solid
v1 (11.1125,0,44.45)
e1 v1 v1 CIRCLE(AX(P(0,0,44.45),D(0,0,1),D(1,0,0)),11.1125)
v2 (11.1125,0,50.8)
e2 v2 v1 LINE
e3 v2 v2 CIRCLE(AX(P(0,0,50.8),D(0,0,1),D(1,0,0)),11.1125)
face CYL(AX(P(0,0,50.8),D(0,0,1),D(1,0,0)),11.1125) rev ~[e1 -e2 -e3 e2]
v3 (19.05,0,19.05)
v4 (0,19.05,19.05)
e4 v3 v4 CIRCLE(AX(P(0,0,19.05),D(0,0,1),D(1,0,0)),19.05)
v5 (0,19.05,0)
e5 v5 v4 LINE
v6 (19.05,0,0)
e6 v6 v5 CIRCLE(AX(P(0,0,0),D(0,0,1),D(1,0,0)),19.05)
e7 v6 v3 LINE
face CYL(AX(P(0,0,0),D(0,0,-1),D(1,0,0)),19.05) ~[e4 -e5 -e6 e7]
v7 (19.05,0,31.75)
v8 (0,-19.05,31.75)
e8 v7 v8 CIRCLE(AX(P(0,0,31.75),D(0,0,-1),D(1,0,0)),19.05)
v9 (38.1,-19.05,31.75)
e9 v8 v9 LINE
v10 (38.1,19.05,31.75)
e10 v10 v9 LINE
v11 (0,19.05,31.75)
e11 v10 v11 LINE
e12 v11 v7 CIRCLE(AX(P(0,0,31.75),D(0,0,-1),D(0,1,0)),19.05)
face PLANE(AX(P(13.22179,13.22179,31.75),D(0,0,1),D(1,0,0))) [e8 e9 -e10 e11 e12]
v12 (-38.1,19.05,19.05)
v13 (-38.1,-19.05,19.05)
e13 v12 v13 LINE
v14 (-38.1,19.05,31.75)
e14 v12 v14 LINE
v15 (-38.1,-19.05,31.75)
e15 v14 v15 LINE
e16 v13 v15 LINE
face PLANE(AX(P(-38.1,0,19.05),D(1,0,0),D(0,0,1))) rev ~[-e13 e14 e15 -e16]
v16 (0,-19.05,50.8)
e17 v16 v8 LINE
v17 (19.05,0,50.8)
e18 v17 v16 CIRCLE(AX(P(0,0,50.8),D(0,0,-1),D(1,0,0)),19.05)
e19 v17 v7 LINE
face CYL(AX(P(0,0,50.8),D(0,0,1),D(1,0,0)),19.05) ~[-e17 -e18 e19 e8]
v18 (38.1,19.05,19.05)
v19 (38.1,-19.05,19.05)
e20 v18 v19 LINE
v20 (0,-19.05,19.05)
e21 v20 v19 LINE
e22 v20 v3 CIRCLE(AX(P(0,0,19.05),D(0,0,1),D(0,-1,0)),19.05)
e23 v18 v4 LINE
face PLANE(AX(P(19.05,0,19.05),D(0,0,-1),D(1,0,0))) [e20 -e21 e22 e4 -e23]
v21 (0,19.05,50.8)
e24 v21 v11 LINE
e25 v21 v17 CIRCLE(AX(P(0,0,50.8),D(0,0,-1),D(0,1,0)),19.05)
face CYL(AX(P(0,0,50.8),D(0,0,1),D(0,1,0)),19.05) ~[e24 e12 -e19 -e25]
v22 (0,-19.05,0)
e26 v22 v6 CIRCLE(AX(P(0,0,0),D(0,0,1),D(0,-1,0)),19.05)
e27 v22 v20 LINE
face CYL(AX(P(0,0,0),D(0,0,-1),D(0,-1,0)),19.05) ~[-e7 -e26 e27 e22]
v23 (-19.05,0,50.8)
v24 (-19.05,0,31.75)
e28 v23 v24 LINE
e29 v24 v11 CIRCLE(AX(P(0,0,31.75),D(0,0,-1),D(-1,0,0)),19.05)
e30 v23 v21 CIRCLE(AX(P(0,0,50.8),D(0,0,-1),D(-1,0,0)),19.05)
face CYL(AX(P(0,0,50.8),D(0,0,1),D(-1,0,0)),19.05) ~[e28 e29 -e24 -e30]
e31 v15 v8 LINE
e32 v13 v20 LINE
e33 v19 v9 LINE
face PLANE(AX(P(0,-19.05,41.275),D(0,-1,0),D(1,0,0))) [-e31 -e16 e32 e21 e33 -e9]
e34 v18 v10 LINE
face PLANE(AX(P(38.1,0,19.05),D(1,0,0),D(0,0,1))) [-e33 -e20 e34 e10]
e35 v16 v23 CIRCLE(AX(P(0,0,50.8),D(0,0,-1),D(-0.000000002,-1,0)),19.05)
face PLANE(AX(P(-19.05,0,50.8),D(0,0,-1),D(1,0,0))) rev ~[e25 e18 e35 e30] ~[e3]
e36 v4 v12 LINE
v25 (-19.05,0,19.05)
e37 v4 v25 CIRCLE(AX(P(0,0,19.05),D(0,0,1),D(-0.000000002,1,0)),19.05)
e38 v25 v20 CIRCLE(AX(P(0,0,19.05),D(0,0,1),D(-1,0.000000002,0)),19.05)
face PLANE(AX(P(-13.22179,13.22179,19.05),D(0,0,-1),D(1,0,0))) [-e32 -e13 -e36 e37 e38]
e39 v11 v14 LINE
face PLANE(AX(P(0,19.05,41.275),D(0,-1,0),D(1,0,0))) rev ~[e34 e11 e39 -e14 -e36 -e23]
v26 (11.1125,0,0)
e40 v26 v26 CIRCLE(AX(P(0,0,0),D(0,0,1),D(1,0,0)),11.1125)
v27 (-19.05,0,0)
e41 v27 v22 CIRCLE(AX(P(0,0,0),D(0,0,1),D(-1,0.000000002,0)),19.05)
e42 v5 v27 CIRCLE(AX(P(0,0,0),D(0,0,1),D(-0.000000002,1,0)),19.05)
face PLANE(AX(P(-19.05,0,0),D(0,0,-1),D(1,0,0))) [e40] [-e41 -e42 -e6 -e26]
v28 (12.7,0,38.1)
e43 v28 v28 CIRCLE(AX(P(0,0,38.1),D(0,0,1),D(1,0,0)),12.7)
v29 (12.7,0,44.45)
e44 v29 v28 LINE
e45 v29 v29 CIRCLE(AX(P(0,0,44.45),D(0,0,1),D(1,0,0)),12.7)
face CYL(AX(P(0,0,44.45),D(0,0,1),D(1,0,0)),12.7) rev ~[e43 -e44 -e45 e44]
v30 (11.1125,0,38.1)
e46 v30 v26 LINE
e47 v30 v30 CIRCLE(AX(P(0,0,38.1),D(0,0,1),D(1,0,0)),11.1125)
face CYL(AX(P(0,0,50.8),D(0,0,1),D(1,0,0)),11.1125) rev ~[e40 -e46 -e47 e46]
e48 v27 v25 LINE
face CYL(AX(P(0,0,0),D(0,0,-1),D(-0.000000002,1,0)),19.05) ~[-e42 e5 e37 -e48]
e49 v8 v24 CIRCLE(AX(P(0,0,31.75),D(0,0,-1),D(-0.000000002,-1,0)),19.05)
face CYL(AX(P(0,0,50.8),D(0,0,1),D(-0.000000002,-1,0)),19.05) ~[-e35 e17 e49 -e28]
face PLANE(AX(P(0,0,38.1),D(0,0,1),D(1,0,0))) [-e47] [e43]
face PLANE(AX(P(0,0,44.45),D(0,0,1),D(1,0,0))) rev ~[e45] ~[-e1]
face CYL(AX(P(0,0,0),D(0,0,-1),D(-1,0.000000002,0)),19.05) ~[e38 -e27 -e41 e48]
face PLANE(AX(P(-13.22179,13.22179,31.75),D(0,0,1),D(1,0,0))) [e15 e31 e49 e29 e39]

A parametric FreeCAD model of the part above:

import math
import FreeCAD as App
import Part
import Sketcher
Q = App.Units.Quantity


def add_polygon(sketch, points):
    """Adds a closed chain of lines whose ends are joined by coincident constraints."""
    first, n = sketch.GeometryCount, len(points)
    for a, b in zip(points, points[1:] + points[:1]):
        sketch.addGeometry(Part.LineSegment(App.Vector(*a, 0), App.Vector(*b, 0)), False)
    for i in range(n):
        sketch.addConstraint(Sketcher.Constraint("Coincident", first + i, 2, first + (i + 1) % n, 1))

doc = App.newDocument("Part")
params = doc.addObject("Spreadsheet::Sheet", "Params")
for row, (alias, value) in enumerate([
    ("sketch1_width", "1.5 in"),
    ("sketch1_height", "0.5 in"),
    ("pad1_length", "1.5 in"),
    ("sketch2_radius", "0.75 in"),
    ("pocket1_length", "0.75 in"),
    ("sketch3_radius", "0.75 in"),
    ("pocket2_length", "0.75 in"),
    ("sketch4_diameter", "1 in"),
    ("sketch4_diameter2", "0.875 in"),
    ("pocket3_length", "0.25 in"),
    ("sketch5_diameter", "0.875 in"),
], start=1):
    params.set(f"A{row}", alias)
    params.set(f"B{row}", "=" + value)
    params.setAlias(f"B{row}", alias)

body = doc.addObject("PartDesign::Body", "Body")

# Sketch on XZ plane
sketch1 = body.newObject("Sketcher::SketchObject", "Sketch")
sketch1.AttachmentSupport = (doc.getObject("XZ_Plane"), [""])
sketch1.MapMode = "FlatFace"
add_polygon(sketch1, [(-19, 51), (-19, 32), (-38, 32), (-38, 19), (-19, 19), (-19, 0), (19, 0), (19, 19), (38, 19), (38, 32), (19, 32), (19, 51)])  # lines 0-11
sketch1.addConstraint(Sketcher.Constraint("Vertical", 0))
sketch1.addConstraint(Sketcher.Constraint("Horizontal", 1))
sketch1.addConstraint(Sketcher.Constraint("Vertical", 2))
sketch1.addConstraint(Sketcher.Constraint("Horizontal", 3))
sketch1.addConstraint(Sketcher.Constraint("Vertical", 4))
sketch1.addConstraint(Sketcher.Constraint("Horizontal", 5))
sketch1.addConstraint(Sketcher.Constraint("Vertical", 6))
sketch1.addConstraint(Sketcher.Constraint("Horizontal", 7))
sketch1.addConstraint(Sketcher.Constraint("Vertical", 8))
sketch1.addConstraint(Sketcher.Constraint("Horizontal", 9))
sketch1.addConstraint(Sketcher.Constraint("Vertical", 10))
sketch1.addConstraint(Sketcher.Constraint("Horizontal", 11))
sketch1.addConstraint(Sketcher.Constraint("Symmetric", 4, 2, 5, 2, -1, 1))
sketch1.addConstraint(Sketcher.Constraint("Symmetric", 2, 2, 7, 2, -2))
sketch1.addConstraint(Sketcher.Constraint("Symmetric", 0, 2, 9, 2, -2))
sketch1.addConstraint(Sketcher.Constraint("Vertical", 0, 2, 3, 2))
sketch1.addConstraint(Sketcher.Constraint("Equal", 9, 0))
sketch1.addConstraint(Sketcher.Constraint("Equal", 0, 4))
sketch1.addConstraint(Sketcher.Constraint("DistanceX", 5, 1, 5, 2, Q("1.5 in")))
sketch1.addConstraint(Sketcher.Constraint("DistanceY", 2, 2, 2, 1, Q("0.5 in")))
sketch1.addConstraint(Sketcher.Constraint("DistanceY", -1, 1, 10, 2, Q("2 in")))
sketch1.setExpression("Constraints[30]", "Params.sketch1_width")
sketch1.setExpression("Constraints[31]", "Params.sketch1_height")
pad1 = body.newObject("PartDesign::Pad", "Pad")
pad1.Profile = sketch1
pad1.setExpression("Length", "Params.pad1_length")
pad1.Midplane = True

# Sketch on XY plane
sketch2 = body.newObject("Sketcher::SketchObject", "Sketch001")
sketch2.AttachmentSupport = (doc.getObject("XY_Plane"), [""])
sketch2.MapMode = "FlatFace"
sketch2.AttachmentOffset = App.Placement(App.Vector(0, 0, 2 * 25.4), App.Rotation())
sketch2.addGeometry(Part.ArcOfCircle(Part.Circle(App.Vector(0, 0, 0), App.Vector(0, 0, 1), 19), math.radians(90), math.radians(180)), False)
sketch2.addGeometry(Part.LineSegment(App.Vector(0, 19, 0), App.Vector(-19, 19, 0)), False)
sketch2.addGeometry(Part.LineSegment(App.Vector(-19, 19, 0), App.Vector(-19, 0, 0)), False)
sketch2.addGeometry(Part.ArcOfCircle(Part.Circle(App.Vector(0, 0, 0), App.Vector(0, 0, 1), 19), math.radians(0), math.radians(90)), False)
sketch2.addGeometry(Part.LineSegment(App.Vector(19, 0, 0), App.Vector(19, 19, 0)), False)
sketch2.addGeometry(Part.LineSegment(App.Vector(19, 19, 0), App.Vector(0, 19, 0)), False)
sketch2.addGeometry(Part.LineSegment(App.Vector(-19, -19, 0), App.Vector(0, -19, 0)), False)
sketch2.addGeometry(Part.ArcOfCircle(Part.Circle(App.Vector(0, 0, 0), App.Vector(0, 0, 1), 19), math.radians(180), math.radians(270)), False)
sketch2.addGeometry(Part.LineSegment(App.Vector(-19, 0, 0), App.Vector(-19, -19, 0)), False)
sketch2.addGeometry(Part.LineSegment(App.Vector(19, -19, 0), App.Vector(19, 0, 0)), False)
sketch2.addGeometry(Part.ArcOfCircle(Part.Circle(App.Vector(0, 0, 0), App.Vector(0, 0, 1), 19), math.radians(-90), math.radians(0)), False)
sketch2.addGeometry(Part.LineSegment(App.Vector(0, -19, 0), App.Vector(19, -19, 0)), False)
sketch2.addConstraint(Sketcher.Constraint("Tangent", 0, 1, 1, 1))
sketch2.addConstraint(Sketcher.Constraint("Coincident", 1, 2, 2, 1))
sketch2.addConstraint(Sketcher.Constraint("Tangent", 2, 2, 0, 2))
sketch2.addConstraint(Sketcher.Constraint("Tangent", 3, 1, 4, 1))
sketch2.addConstraint(Sketcher.Constraint("Coincident", 4, 2, 5, 1))
sketch2.addConstraint(Sketcher.Constraint("Tangent", 5, 2, 3, 2))
sketch2.addConstraint(Sketcher.Constraint("Tangent", 6, 2, 7, 2))
sketch2.addConstraint(Sketcher.Constraint("Tangent", 7, 1, 8, 1))
sketch2.addConstraint(Sketcher.Constraint("Coincident", 8, 2, 6, 1))
sketch2.addConstraint(Sketcher.Constraint("Tangent", 9, 2, 10, 2))
sketch2.addConstraint(Sketcher.Constraint("Tangent", 10, 1, 11, 1))
sketch2.addConstraint(Sketcher.Constraint("Coincident", 11, 2, 9, 1))
sketch2.addConstraint(Sketcher.Constraint("Horizontal", 1))
sketch2.addConstraint(Sketcher.Constraint("Vertical", 2))
sketch2.addConstraint(Sketcher.Constraint("Vertical", 4))
sketch2.addConstraint(Sketcher.Constraint("Horizontal", 5))
sketch2.addConstraint(Sketcher.Constraint("Horizontal", 6))
sketch2.addConstraint(Sketcher.Constraint("Vertical", 8))
sketch2.addConstraint(Sketcher.Constraint("Vertical", 9))
sketch2.addConstraint(Sketcher.Constraint("Horizontal", 11))
sketch2.addConstraint(Sketcher.Constraint("Coincident", 0, 3, -1, 1))
sketch2.addConstraint(Sketcher.Constraint("Coincident", 3, 3, -1, 1))
sketch2.addConstraint(Sketcher.Constraint("Coincident", 7, 3, -1, 1))
sketch2.addConstraint(Sketcher.Constraint("Coincident", 10, 3, -1, 1))
sketch2.addConstraint(Sketcher.Constraint("Equal", 0, 3))
sketch2.addConstraint(Sketcher.Constraint("Equal", 3, 7))
sketch2.addConstraint(Sketcher.Constraint("Equal", 7, 10))
sketch2.addConstraint(Sketcher.Constraint("Radius", 0, Q("0.75 in")))
sketch2.setExpression("Constraints[27]", "Params.sketch2_radius")
pocket1 = body.newObject("PartDesign::Pocket", "Pocket")
pocket1.Profile = sketch2
pocket1.setExpression("Length", "Params.pocket1_length")

# Sketch on XY plane
sketch3 = body.newObject("Sketcher::SketchObject", "Sketch002")
sketch3.AttachmentSupport = (doc.getObject("XY_Plane"), [""])
sketch3.MapMode = "FlatFace"
sketch3.addGeometry(Part.ArcOfCircle(Part.Circle(App.Vector(0, 0, 0), App.Vector(0, 0, 1), 19), math.radians(180), math.radians(270)), False)
sketch3.addGeometry(Part.LineSegment(App.Vector(0, -19, 0), App.Vector(-19, -19, 0)), False)
sketch3.addGeometry(Part.LineSegment(App.Vector(-19, -19, 0), App.Vector(-19, 0, 0)), False)
sketch3.addGeometry(Part.ArcOfCircle(Part.Circle(App.Vector(0, 0, 0), App.Vector(0, 0, 1), 19), math.radians(-90), math.radians(0)), False)
sketch3.addGeometry(Part.LineSegment(App.Vector(19, 0, 0), App.Vector(19, -19, 0)), False)
sketch3.addGeometry(Part.LineSegment(App.Vector(19, -19, 0), App.Vector(0, -19, 0)), False)
sketch3.addGeometry(Part.LineSegment(App.Vector(19, 19, 0), App.Vector(19, 0, 0)), False)
sketch3.addGeometry(Part.ArcOfCircle(Part.Circle(App.Vector(0, 0, 0), App.Vector(0, 0, 1), 19), math.radians(0), math.radians(90)), False)
sketch3.addGeometry(Part.LineSegment(App.Vector(0, 19, 0), App.Vector(19, 19, 0)), False)
sketch3.addGeometry(Part.LineSegment(App.Vector(-19, 19, 0), App.Vector(0, 19, 0)), False)
sketch3.addGeometry(Part.ArcOfCircle(Part.Circle(App.Vector(0, 0, 0), App.Vector(0, 0, 1), 19), math.radians(90), math.radians(180)), False)
sketch3.addGeometry(Part.LineSegment(App.Vector(-19, 0, 0), App.Vector(-19, 19, 0)), False)
sketch3.addConstraint(Sketcher.Constraint("Tangent", 0, 2, 1, 1))
sketch3.addConstraint(Sketcher.Constraint("Coincident", 1, 2, 2, 1))
sketch3.addConstraint(Sketcher.Constraint("Tangent", 2, 2, 0, 1))
sketch3.addConstraint(Sketcher.Constraint("Tangent", 3, 2, 4, 1))
sketch3.addConstraint(Sketcher.Constraint("Coincident", 4, 2, 5, 1))
sketch3.addConstraint(Sketcher.Constraint("Tangent", 5, 2, 3, 1))
sketch3.addConstraint(Sketcher.Constraint("Tangent", 6, 2, 7, 1))
sketch3.addConstraint(Sketcher.Constraint("Tangent", 7, 2, 8, 1))
sketch3.addConstraint(Sketcher.Constraint("Coincident", 8, 2, 6, 1))
sketch3.addConstraint(Sketcher.Constraint("Tangent", 9, 2, 10, 1))
sketch3.addConstraint(Sketcher.Constraint("Tangent", 10, 2, 11, 1))
sketch3.addConstraint(Sketcher.Constraint("Coincident", 11, 2, 9, 1))
sketch3.addConstraint(Sketcher.Constraint("Horizontal", 1))
sketch3.addConstraint(Sketcher.Constraint("Vertical", 2))
sketch3.addConstraint(Sketcher.Constraint("Vertical", 4))
sketch3.addConstraint(Sketcher.Constraint("Horizontal", 5))
sketch3.addConstraint(Sketcher.Constraint("Vertical", 6))
sketch3.addConstraint(Sketcher.Constraint("Horizontal", 8))
sketch3.addConstraint(Sketcher.Constraint("Horizontal", 9))
sketch3.addConstraint(Sketcher.Constraint("Vertical", 11))
sketch3.addConstraint(Sketcher.Constraint("Coincident", 0, 3, -1, 1))
sketch3.addConstraint(Sketcher.Constraint("Coincident", 3, 3, -1, 1))
sketch3.addConstraint(Sketcher.Constraint("Coincident", 7, 3, -1, 1))
sketch3.addConstraint(Sketcher.Constraint("Coincident", 10, 3, -1, 1))
sketch3.addConstraint(Sketcher.Constraint("Equal", 0, 3))
sketch3.addConstraint(Sketcher.Constraint("Equal", 3, 7))
sketch3.addConstraint(Sketcher.Constraint("Equal", 7, 10))
sketch3.addConstraint(Sketcher.Constraint("Radius", 0, Q("0.75 in")))
sketch3.setExpression("Constraints[27]", "Params.sketch3_radius")
pocket2 = body.newObject("PartDesign::Pocket", "Pocket001")
pocket2.Profile = sketch3
pocket2.setExpression("Length", "Params.pocket2_length")
pocket2.Reversed = True

# Sketch on XY plane
sketch4 = body.newObject("Sketcher::SketchObject", "Sketch003")
sketch4.AttachmentSupport = (doc.getObject("XY_Plane"), [""])
sketch4.MapMode = "FlatFace"
sketch4.AttachmentOffset = App.Placement(App.Vector(0, 0, 1.75 * 25.4), App.Rotation())
sketch4.addGeometry(Part.Circle(App.Vector(0, 0, 0), App.Vector(0, 0, 1), 13), False)
sketch4.addGeometry(Part.Circle(App.Vector(0, 0, 0), App.Vector(0, 0, 1), 11), False)
sketch4.addConstraint(Sketcher.Constraint("Coincident", 0, 3, -1, 1))
sketch4.addConstraint(Sketcher.Constraint("Coincident", 1, 3, -1, 1))
sketch4.addConstraint(Sketcher.Constraint("Diameter", 0, Q("1 in")))
sketch4.addConstraint(Sketcher.Constraint("Diameter", 1, Q("0.875 in")))
sketch4.setExpression("Constraints[2]", "Params.sketch4_diameter")
sketch4.setExpression("Constraints[3]", "Params.sketch4_diameter2")
pocket3 = body.newObject("PartDesign::Pocket", "Pocket002")
pocket3.Profile = sketch4
pocket3.setExpression("Length", "Params.pocket3_length")

# Sketch on XY plane
sketch5 = body.newObject("Sketcher::SketchObject", "Sketch004")
sketch5.AttachmentSupport = (doc.getObject("XY_Plane"), [""])
sketch5.MapMode = "FlatFace"
sketch5.AttachmentOffset = App.Placement(App.Vector(0, 0, 2 * 25.4), App.Rotation())
sketch5.addGeometry(Part.Circle(App.Vector(0, 0, 0), App.Vector(0, 0, 1), 11), False)
sketch5.addConstraint(Sketcher.Constraint("Coincident", 0, 3, -1, 1))
sketch5.addConstraint(Sketcher.Constraint("Diameter", 0, Q("0.875 in")))
sketch5.setExpression("Constraints[1]", "Params.sketch5_diameter")
pocket4 = body.newObject("PartDesign::Pocket", "Pocket003")
pocket4.Profile = sketch5
pocket4.Type = "ThroughAll"

doc.recompute()
